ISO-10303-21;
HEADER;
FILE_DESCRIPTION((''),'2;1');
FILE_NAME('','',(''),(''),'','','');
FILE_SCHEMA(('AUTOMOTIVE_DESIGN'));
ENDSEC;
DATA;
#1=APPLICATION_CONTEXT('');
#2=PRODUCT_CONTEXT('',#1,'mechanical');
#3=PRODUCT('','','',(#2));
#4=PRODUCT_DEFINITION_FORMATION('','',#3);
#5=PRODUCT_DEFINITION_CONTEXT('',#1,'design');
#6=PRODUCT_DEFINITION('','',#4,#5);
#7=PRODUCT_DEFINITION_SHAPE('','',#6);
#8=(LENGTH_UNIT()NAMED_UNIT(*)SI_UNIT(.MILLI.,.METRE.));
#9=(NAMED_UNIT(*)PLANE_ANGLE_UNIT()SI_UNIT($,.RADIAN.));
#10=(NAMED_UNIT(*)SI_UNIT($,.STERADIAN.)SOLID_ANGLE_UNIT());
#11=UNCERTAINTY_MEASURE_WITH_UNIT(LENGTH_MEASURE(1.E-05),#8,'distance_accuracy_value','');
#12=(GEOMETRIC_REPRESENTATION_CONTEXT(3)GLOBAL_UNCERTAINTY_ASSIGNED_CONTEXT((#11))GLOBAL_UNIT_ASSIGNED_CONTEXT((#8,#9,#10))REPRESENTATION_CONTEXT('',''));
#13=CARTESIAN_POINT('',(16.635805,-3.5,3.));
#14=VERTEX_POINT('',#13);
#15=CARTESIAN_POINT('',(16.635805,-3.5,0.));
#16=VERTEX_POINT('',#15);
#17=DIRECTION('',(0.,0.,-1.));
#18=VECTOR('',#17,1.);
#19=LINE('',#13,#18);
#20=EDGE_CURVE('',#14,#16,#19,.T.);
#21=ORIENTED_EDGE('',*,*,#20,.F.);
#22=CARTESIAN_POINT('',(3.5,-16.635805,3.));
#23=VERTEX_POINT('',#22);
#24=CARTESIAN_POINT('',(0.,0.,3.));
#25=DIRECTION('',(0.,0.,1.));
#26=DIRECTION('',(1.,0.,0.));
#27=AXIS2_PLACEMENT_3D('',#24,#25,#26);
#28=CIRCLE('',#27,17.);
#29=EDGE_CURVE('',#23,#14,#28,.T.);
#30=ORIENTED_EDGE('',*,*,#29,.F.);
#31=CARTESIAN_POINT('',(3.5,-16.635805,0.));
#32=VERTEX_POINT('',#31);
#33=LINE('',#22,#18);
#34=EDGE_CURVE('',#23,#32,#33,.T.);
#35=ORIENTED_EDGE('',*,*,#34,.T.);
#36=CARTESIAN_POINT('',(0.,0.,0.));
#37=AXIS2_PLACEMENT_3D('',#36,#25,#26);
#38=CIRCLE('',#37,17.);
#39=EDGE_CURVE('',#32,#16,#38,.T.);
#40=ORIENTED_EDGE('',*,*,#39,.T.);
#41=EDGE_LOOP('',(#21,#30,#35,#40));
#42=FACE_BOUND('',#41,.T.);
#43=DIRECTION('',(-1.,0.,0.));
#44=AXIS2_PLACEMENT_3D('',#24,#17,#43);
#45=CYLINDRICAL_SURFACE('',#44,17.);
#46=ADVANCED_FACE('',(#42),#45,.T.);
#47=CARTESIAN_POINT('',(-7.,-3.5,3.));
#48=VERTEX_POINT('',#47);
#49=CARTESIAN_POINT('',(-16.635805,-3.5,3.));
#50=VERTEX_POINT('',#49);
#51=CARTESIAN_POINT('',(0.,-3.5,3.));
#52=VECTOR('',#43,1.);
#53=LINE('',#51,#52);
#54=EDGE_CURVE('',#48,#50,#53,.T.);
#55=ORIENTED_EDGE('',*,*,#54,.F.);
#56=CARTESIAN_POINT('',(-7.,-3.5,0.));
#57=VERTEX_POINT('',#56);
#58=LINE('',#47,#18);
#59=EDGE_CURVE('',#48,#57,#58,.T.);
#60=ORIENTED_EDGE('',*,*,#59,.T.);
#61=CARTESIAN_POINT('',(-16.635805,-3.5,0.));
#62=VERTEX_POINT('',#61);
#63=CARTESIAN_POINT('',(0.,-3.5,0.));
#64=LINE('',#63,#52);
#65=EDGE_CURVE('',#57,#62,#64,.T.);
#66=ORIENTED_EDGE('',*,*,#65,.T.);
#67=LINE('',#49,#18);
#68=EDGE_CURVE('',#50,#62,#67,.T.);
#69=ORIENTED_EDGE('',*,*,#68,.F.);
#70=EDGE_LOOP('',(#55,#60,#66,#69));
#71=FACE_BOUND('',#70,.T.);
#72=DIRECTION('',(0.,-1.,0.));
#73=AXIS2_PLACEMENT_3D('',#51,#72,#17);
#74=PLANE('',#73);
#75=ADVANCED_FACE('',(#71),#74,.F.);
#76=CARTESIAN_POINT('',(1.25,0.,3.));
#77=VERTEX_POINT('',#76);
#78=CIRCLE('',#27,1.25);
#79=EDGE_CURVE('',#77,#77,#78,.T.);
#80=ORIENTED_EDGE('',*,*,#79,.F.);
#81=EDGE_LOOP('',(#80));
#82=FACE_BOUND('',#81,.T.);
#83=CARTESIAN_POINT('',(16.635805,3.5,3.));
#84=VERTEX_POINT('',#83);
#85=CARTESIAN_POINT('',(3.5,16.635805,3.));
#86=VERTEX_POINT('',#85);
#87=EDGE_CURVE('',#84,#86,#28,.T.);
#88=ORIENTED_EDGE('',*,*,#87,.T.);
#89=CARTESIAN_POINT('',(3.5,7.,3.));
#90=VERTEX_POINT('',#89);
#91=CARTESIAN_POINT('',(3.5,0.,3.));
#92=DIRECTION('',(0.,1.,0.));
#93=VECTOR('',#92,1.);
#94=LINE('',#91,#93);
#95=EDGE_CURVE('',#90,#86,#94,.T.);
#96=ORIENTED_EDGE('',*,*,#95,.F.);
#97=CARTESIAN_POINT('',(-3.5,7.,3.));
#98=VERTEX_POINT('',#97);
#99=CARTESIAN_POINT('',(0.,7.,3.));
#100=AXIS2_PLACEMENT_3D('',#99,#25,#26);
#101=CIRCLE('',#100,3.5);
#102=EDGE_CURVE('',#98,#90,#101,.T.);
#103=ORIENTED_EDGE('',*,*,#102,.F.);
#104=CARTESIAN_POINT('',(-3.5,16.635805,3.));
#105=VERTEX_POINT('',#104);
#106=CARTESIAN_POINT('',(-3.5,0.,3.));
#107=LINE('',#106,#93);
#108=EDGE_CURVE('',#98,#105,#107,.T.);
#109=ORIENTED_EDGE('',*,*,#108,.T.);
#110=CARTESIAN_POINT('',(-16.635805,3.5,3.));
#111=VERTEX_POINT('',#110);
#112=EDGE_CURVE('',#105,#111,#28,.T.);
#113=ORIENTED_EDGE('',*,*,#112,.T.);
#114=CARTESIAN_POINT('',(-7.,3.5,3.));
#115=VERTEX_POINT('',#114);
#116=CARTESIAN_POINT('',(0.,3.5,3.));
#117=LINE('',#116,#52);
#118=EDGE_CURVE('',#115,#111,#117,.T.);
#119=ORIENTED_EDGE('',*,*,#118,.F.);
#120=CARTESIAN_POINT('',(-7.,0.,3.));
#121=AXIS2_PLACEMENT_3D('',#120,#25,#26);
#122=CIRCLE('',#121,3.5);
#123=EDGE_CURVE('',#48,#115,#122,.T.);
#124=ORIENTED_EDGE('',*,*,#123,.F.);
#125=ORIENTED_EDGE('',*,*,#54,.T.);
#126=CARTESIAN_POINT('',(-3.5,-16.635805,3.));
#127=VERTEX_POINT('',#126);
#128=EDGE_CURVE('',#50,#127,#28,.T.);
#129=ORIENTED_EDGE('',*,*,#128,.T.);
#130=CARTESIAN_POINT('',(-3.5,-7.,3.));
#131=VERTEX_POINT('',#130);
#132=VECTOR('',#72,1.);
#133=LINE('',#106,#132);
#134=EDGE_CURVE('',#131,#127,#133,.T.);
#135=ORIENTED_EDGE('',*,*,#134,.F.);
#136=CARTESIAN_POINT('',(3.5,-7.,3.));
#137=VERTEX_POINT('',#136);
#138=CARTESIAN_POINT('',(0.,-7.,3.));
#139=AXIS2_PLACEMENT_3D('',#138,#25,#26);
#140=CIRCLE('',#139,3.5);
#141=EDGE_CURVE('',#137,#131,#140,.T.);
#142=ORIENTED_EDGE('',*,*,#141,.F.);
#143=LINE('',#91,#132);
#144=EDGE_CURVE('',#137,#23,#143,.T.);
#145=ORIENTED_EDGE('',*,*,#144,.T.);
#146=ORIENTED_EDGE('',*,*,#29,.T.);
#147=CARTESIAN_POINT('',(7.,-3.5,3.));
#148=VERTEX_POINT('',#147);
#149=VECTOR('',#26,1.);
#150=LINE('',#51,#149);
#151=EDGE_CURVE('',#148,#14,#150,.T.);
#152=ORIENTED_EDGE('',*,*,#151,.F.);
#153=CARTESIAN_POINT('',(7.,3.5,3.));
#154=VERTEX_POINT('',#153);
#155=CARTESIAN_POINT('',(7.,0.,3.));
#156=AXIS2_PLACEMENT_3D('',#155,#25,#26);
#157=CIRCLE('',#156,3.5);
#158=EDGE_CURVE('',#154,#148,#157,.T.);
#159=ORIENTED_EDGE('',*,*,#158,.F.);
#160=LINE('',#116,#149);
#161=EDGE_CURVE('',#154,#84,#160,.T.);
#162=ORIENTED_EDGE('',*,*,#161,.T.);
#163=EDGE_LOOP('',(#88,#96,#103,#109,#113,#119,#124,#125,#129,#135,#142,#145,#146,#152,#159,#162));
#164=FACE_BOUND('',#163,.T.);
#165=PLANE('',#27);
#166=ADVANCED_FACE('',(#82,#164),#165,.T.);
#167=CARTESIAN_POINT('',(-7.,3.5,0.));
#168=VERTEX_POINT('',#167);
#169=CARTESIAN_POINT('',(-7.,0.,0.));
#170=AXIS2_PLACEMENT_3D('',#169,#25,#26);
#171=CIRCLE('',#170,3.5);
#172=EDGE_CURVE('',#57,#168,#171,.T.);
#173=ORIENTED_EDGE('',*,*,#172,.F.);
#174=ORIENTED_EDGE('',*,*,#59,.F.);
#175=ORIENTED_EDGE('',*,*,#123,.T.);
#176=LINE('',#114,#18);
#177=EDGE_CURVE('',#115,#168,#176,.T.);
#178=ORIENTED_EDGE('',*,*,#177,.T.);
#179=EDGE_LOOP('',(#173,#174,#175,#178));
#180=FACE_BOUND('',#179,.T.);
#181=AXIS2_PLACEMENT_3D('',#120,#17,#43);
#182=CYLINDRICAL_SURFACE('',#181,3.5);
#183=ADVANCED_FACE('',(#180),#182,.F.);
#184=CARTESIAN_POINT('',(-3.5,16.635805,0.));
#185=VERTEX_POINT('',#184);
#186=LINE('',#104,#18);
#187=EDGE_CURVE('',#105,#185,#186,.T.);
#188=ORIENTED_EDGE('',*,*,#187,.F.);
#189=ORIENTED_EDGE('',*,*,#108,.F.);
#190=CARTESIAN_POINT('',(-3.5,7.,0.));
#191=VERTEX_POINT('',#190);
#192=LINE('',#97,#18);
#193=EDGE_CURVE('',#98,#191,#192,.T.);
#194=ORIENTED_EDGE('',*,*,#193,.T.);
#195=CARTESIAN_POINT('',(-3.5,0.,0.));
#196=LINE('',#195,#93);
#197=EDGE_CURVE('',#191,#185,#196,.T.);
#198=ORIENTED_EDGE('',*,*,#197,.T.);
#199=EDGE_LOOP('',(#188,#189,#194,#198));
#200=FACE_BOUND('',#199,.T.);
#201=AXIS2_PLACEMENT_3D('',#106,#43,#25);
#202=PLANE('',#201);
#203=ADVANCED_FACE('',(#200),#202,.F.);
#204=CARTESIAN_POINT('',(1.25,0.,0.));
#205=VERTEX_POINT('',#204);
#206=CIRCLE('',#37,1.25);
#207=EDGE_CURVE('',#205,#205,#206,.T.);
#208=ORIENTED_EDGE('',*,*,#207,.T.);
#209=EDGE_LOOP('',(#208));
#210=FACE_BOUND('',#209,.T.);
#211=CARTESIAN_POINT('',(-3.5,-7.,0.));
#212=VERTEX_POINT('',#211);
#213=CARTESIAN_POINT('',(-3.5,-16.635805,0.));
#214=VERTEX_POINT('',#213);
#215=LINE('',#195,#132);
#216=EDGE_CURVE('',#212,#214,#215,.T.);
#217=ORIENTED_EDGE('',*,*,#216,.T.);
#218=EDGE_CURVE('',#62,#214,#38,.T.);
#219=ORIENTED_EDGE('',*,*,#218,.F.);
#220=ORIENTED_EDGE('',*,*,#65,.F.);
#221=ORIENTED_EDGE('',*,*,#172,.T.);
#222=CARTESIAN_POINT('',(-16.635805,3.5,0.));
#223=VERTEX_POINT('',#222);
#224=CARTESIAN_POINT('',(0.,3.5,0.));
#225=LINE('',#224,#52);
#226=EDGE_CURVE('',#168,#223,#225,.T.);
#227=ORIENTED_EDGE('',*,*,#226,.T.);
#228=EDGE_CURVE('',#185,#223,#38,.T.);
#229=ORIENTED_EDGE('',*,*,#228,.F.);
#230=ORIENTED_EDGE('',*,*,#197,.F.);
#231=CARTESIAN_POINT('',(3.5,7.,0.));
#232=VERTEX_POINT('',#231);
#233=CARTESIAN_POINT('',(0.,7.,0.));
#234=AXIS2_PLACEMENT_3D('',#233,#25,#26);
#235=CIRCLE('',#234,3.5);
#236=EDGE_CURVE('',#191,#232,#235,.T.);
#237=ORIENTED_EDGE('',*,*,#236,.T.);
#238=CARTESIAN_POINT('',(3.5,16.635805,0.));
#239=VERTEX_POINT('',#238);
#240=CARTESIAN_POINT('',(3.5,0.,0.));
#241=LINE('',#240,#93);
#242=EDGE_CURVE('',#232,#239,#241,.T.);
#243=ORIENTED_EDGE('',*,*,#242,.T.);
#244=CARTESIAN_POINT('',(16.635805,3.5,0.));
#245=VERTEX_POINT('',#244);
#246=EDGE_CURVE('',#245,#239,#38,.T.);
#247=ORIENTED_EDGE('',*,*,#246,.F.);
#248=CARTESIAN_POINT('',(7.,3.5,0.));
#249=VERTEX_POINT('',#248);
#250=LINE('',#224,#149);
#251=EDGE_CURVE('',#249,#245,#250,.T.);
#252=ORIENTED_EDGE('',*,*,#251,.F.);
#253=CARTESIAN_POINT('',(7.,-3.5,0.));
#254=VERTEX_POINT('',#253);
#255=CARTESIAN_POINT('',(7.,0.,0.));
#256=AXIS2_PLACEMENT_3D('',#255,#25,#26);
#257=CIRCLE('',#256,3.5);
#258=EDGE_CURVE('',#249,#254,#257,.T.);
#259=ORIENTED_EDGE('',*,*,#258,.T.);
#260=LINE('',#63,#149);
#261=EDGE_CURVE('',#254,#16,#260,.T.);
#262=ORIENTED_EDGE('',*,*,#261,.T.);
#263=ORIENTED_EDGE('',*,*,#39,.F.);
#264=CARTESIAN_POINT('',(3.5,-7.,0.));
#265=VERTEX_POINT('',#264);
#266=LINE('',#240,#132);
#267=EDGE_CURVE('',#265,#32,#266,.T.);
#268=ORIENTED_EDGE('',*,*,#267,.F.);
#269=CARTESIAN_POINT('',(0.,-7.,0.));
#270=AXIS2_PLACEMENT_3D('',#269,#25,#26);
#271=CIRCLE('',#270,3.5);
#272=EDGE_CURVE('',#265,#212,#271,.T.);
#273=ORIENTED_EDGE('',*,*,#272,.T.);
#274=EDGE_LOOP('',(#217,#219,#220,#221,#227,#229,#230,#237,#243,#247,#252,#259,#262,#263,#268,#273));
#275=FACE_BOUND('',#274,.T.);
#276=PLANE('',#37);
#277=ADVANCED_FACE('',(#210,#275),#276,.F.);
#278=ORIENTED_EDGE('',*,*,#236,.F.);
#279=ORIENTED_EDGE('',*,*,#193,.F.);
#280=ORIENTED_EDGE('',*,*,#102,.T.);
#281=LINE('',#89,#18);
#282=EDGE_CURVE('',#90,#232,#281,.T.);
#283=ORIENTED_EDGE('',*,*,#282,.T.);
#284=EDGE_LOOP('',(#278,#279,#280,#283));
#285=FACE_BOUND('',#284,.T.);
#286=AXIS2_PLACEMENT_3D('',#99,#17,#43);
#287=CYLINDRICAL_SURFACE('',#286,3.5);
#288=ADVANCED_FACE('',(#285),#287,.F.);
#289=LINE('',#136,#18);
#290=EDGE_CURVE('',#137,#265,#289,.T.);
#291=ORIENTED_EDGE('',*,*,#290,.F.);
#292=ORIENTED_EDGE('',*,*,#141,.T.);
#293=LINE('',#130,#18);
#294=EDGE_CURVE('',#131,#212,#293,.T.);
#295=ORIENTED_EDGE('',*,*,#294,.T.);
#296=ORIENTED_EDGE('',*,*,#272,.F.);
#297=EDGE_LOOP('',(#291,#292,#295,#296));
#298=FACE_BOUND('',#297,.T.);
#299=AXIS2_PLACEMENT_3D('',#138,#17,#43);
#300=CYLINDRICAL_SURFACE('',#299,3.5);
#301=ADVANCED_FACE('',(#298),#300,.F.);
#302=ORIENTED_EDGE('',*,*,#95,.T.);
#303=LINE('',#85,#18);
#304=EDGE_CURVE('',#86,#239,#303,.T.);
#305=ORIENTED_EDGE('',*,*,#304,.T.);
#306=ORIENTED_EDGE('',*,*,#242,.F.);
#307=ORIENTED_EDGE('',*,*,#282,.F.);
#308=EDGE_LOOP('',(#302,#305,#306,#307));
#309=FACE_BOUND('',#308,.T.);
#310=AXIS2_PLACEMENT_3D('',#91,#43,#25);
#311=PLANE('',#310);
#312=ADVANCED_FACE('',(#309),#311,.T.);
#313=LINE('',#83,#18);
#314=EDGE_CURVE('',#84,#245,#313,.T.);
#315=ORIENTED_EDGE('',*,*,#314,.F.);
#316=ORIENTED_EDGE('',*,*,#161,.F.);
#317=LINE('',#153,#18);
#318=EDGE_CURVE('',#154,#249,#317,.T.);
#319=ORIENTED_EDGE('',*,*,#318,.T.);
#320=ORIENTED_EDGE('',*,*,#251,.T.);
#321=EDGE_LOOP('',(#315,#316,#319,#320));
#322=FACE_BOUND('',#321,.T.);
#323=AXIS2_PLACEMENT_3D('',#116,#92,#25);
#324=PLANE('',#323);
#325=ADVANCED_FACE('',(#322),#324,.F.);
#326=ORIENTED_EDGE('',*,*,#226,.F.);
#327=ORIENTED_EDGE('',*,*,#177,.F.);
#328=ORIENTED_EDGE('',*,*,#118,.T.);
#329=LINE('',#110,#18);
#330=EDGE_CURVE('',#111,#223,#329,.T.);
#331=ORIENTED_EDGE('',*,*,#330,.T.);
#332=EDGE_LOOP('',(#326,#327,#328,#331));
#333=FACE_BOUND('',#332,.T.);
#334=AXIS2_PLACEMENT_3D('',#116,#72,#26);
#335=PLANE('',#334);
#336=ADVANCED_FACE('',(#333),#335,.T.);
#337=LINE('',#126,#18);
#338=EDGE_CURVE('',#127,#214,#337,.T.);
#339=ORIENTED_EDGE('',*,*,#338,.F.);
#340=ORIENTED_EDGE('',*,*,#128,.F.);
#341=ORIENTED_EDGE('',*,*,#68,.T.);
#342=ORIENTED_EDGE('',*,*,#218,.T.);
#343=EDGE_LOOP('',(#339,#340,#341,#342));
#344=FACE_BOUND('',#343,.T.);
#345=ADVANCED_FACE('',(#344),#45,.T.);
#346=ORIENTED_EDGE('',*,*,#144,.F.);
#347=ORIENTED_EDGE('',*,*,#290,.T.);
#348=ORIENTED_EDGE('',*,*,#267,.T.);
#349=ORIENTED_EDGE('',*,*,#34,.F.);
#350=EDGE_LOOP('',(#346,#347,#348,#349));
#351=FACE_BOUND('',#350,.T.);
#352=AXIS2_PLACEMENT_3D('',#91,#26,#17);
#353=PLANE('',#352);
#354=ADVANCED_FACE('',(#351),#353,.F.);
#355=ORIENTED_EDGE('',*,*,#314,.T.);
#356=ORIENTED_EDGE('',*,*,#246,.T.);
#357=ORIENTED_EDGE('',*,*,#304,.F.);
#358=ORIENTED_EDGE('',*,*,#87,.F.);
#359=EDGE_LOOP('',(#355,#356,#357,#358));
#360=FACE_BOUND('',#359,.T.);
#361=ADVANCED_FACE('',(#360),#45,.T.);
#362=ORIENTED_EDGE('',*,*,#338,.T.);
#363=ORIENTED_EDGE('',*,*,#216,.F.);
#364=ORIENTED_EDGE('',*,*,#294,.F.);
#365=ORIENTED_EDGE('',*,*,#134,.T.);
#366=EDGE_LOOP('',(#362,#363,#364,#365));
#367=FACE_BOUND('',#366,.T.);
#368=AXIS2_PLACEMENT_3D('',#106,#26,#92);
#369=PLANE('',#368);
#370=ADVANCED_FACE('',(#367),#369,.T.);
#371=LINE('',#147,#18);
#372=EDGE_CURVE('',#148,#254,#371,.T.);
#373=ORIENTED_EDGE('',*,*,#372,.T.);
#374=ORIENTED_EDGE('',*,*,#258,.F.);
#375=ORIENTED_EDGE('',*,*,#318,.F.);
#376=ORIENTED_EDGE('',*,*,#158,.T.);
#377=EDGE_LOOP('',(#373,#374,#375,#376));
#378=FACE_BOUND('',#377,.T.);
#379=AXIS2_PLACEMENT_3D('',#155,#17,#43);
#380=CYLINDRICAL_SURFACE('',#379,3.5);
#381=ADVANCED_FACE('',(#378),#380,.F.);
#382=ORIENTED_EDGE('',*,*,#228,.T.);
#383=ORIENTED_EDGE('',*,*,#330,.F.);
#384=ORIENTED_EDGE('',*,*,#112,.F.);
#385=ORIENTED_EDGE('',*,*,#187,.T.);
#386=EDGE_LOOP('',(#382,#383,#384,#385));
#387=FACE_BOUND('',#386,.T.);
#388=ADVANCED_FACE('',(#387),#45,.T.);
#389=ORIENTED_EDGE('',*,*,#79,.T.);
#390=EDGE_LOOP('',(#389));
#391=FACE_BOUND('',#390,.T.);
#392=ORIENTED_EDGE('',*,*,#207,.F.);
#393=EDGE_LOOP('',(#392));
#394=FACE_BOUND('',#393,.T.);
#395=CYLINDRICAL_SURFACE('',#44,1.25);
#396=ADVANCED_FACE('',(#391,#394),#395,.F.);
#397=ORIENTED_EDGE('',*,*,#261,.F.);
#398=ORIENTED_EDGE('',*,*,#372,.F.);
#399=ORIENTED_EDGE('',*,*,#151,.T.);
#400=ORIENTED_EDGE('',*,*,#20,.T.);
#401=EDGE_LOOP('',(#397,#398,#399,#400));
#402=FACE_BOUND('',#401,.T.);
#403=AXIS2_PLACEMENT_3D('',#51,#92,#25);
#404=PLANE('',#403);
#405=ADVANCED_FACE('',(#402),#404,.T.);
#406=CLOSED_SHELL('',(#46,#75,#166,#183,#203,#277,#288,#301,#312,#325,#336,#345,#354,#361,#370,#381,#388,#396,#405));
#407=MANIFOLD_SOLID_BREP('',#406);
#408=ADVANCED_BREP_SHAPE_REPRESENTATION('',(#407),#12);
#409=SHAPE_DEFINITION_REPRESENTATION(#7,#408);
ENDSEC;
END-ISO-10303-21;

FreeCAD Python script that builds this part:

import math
import FreeCAD as App
import Part
import Sketcher
from FreeCAD import Vector
Q = App.Units.Quantity

doc = App.newDocument("Part")
body = doc.addObject("PartDesign::Body", "Body")

sketch1 = doc.addObject("Sketcher::SketchObject", "Sketch")
body.addObject(sketch1)
sketch1.AttachmentSupport = (doc.XY_Plane, [""])
sketch1.MapMode = "FlatFace"
sketch1.addGeometry(Part.ArcOfCircle(Part.Circle(Vector(0, 7, 0), Vector(0, 0, 1), 3.5), math.radians(180), math.radians(360)), False)
sketch1.addGeometry(Part.LineSegment(Vector(-3.5, 7, 0), Vector(-3.5, 16.6, 0)), False)
sketch1.addGeometry(Part.ArcOfCircle(Part.Circle(Vector(0, 0, 0), Vector(0, 0, 1), 17), math.radians(102), math.radians(168)), False)
sketch1.addGeometry(Part.LineSegment(Vector(-16.6, 3.5, 0), Vector(-7, 3.5, 0)), False)
sketch1.addGeometry(Part.ArcOfCircle(Part.Circle(Vector(-7, 0, 0), Vector(0, 0, 1), 3.5), math.radians(0), math.radians(90)), False)
sketch1.addGeometry(Part.ArcOfCircle(Part.Circle(Vector(-7, 0, 0), Vector(0, 0, 1), 3.5), math.radians(-90), math.radians(0)), False)
sketch1.addGeometry(Part.LineSegment(Vector(-7, -3.5, 0), Vector(-16.6, -3.5, 0)), False)
sketch1.addGeometry(Part.ArcOfCircle(Part.Circle(Vector(0, 0, 0), Vector(0, 0, 1), 17), math.radians(-168), math.radians(-102)), False)
sketch1.addGeometry(Part.LineSegment(Vector(-3.5, -16.6, 0), Vector(-3.5, -7, 0)), False)
sketch1.addGeometry(Part.ArcOfCircle(Part.Circle(Vector(0, -7, 0), Vector(0, 0, 1), 3.5), math.radians(0), math.radians(180)), False)
sketch1.addGeometry(Part.LineSegment(Vector(3.5, -7, 0), Vector(3.5, -16.6, 0)), False)
sketch1.addGeometry(Part.ArcOfCircle(Part.Circle(Vector(0, 0, 0), Vector(0, 0, 1), 17), math.radians(-78), math.radians(-12)), False)
sketch1.addGeometry(Part.LineSegment(Vector(16.6, -3.5, 0), Vector(7, -3.5, 0)), False)
sketch1.addGeometry(Part.ArcOfCircle(Part.Circle(Vector(7, 0, 0), Vector(0, 0, 1), 3.5), math.radians(90), math.radians(270)), False)
sketch1.addGeometry(Part.LineSegment(Vector(7, 3.5, 0), Vector(16.6, 3.5, 0)), False)
sketch1.addGeometry(Part.ArcOfCircle(Part.Circle(Vector(0, 0, 0), Vector(0, 0, 1), 17), math.radians(12), math.radians(78)), False)
sketch1.addGeometry(Part.LineSegment(Vector(3.5, 16.6, 0), Vector(3.5, 7, 0)), False)
sketch1.addGeometry(Part.Circle(Vector(0, 0, 0), Vector(0, 0, 1), 1.2), False)
sketch1.addConstraint(Sketcher.Constraint("Tangent", 0, 1, 1, 1))
sketch1.addConstraint(Sketcher.Constraint("Coincident", 1, 2, 2, 1))
sketch1.addConstraint(Sketcher.Constraint("Coincident", 2, 2, 3, 1))
sketch1.addConstraint(Sketcher.Constraint("Tangent", 3, 2, 4, 2))
sketch1.addConstraint(Sketcher.Constraint("Tangent", 4, 1, 5, 2))
sketch1.addConstraint(Sketcher.Constraint("Tangent", 5, 1, 6, 1))
sketch1.addConstraint(Sketcher.Constraint("Coincident", 6, 2, 7, 1))
sketch1.addConstraint(Sketcher.Constraint("Coincident", 7, 2, 8, 1))
sketch1.addConstraint(Sketcher.Constraint("Tangent", 8, 2, 9, 2))
sketch1.addConstraint(Sketcher.Constraint("Tangent", 9, 1, 10, 1))
sketch1.addConstraint(Sketcher.Constraint("Coincident", 10, 2, 11, 1))
sketch1.addConstraint(Sketcher.Constraint("Coincident", 11, 2, 12, 1))
sketch1.addConstraint(Sketcher.Constraint("Tangent", 12, 2, 13, 2))
sketch1.addConstraint(Sketcher.Constraint("Tangent", 13, 1, 14, 1))
sketch1.addConstraint(Sketcher.Constraint("Coincident", 14, 2, 15, 1))
sketch1.addConstraint(Sketcher.Constraint("Coincident", 15, 2, 16, 1))
sketch1.addConstraint(Sketcher.Constraint("Tangent", 16, 2, 0, 2))
sketch1.addConstraint(Sketcher.Constraint("Vertical", 1))
sketch1.addConstraint(Sketcher.Constraint("Horizontal", 3))
sketch1.addConstraint(Sketcher.Constraint("Horizontal", 6))
sketch1.addConstraint(Sketcher.Constraint("Vertical", 8))
sketch1.addConstraint(Sketcher.Constraint("Vertical", 10))
sketch1.addConstraint(Sketcher.Constraint("Horizontal", 12))
sketch1.addConstraint(Sketcher.Constraint("Horizontal", 14))
sketch1.addConstraint(Sketcher.Constraint("Vertical", 16))
sketch1.addConstraint(Sketcher.Constraint("Coincident", 2, 3, -1, 1))
sketch1.addConstraint(Sketcher.Constraint("Coincident", 7, 3, -1, 1))
sketch1.addConstraint(Sketcher.Constraint("Coincident", 11, 3, -1, 1))
sketch1.addConstraint(Sketcher.Constraint("Coincident", 15, 3, -1, 1))
sketch1.addConstraint(Sketcher.Constraint("Coincident", 17, 3, -1, 1))
sketch1.addConstraint(Sketcher.Constraint("Equal", 0, 4))
sketch1.addConstraint(Sketcher.Constraint("Equal", 4, 5))
sketch1.addConstraint(Sketcher.Constraint("Equal", 2, 7))
sketch1.addConstraint(Sketcher.Constraint("Equal", 5, 9))
sketch1.addConstraint(Sketcher.Constraint("Equal", 7, 11))
sketch1.addConstraint(Sketcher.Constraint("Equal", 9, 13))
sketch1.addConstraint(Sketcher.Constraint("Equal", 11, 15))
sketch1.addConstraint(Sketcher.Constraint("Symmetric", 0, 3, 9, 3, -1, 1))
sketch1.addConstraint(Sketcher.Constraint("Symmetric", 4, 3, 13, 3, -1, 1))
sketch1.addConstraint(Sketcher.Constraint("PointOnObject", 0, 3, -2))
sketch1.addConstraint(Sketcher.Constraint("PointOnObject", 4, 3, -1))
sketch1.addConstraint(Sketcher.Constraint("PointOnObject", 4, 1, -1))
sketch1.addConstraint(Sketcher.Constraint("Vertical", 1, 2, 4, 1))
sketch1.addConstraint(Sketcher.Constraint("Equal", 14, 1))
sketch1.addConstraint(Sketcher.Constraint("Radius", 2, Q("17 mm")))
sketch1.addConstraint(Sketcher.Constraint("Diameter", 17, Q("2.5 mm")))
sketch1.addConstraint(Sketcher.Constraint("Radius", 0, Q("3.5 mm")))
pad1 = doc.addObject("PartDesign::Pad", "Pad")
body.addObject(pad1)
pad1.Profile = sketch1
pad1.Length = 3

doc.recompute()
